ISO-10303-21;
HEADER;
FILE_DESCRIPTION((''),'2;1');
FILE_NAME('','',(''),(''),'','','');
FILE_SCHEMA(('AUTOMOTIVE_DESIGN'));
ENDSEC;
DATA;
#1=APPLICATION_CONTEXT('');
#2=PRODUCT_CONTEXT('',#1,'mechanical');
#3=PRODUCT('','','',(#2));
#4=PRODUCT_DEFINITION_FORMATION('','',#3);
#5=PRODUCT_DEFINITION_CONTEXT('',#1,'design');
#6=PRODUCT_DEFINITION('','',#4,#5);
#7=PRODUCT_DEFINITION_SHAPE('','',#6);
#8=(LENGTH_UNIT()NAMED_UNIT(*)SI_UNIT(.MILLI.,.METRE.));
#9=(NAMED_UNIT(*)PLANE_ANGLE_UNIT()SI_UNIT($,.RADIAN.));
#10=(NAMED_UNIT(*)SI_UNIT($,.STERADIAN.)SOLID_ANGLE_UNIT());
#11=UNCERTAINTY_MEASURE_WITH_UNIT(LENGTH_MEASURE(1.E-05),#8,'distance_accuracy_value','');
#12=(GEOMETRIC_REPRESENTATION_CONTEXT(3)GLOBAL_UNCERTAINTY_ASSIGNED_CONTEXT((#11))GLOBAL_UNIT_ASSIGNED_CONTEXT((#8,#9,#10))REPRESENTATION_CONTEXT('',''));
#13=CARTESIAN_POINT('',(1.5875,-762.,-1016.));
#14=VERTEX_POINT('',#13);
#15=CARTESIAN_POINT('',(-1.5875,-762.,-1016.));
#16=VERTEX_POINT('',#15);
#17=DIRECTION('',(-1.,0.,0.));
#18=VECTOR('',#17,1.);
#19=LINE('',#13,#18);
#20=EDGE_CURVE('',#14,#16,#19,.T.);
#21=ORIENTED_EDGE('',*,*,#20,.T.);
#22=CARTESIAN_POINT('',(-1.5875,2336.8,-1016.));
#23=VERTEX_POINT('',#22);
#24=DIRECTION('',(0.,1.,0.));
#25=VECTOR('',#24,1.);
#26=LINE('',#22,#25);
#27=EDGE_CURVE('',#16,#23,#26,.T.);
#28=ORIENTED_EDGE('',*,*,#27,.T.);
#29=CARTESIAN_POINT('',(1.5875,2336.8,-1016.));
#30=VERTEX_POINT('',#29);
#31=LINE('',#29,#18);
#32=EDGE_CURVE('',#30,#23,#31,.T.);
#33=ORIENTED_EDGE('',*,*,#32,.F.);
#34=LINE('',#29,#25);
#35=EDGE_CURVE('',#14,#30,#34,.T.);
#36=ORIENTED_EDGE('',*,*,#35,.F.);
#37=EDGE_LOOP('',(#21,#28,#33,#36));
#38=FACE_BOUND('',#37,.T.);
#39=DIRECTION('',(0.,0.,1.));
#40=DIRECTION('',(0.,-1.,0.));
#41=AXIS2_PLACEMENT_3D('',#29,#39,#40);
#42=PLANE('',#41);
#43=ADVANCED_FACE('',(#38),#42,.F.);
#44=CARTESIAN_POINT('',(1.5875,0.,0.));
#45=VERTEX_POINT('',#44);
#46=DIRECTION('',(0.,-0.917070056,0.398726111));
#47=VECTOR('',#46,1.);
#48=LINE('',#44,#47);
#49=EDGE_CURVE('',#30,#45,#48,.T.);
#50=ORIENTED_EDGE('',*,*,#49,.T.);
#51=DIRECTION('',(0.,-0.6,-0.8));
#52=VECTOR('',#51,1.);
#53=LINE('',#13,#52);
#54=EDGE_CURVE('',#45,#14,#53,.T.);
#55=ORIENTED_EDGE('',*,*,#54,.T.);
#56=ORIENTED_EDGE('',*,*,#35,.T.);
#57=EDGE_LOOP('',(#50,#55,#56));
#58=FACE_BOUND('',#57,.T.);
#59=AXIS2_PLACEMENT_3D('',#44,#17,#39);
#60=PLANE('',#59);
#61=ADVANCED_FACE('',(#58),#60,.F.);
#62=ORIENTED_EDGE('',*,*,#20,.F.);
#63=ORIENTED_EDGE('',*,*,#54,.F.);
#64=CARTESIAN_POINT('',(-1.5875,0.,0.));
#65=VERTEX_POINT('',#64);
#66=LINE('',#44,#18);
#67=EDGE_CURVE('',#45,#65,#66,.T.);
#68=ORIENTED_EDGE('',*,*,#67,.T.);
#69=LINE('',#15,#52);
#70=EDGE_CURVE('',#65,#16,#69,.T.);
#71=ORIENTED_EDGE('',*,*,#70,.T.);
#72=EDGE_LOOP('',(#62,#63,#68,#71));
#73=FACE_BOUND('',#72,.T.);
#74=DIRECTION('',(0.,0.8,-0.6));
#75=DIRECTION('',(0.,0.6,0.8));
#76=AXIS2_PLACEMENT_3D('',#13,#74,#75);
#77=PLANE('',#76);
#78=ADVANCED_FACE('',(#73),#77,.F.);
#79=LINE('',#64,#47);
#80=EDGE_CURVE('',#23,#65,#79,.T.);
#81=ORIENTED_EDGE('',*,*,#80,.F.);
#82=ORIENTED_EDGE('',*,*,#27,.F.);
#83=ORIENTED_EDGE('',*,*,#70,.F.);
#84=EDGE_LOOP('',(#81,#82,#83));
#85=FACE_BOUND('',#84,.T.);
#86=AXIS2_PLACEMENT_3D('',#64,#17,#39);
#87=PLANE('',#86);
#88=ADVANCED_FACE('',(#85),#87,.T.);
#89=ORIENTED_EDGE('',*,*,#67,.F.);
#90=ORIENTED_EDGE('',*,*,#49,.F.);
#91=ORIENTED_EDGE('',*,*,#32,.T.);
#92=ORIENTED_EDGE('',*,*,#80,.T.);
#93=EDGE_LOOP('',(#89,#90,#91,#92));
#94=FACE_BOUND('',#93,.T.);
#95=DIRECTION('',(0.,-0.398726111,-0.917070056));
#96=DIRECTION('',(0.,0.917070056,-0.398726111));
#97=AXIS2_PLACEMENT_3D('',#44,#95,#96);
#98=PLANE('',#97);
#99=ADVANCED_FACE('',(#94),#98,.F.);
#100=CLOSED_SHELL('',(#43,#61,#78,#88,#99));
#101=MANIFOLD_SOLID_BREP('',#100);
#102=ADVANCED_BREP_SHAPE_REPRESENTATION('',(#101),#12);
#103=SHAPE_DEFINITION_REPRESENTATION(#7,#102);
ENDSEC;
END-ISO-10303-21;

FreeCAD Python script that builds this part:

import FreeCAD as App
import Part
import Sketcher

V = App.Vector
Q = App.Units.Quantity


def add_polygon(sketch, points):
    """Adds a closed chain of lines whose ends are joined by coincident constraints."""
    first, n = sketch.GeometryCount, len(points)
    for a, b in zip(points, points[1:] + points[:1]):
        sketch.addGeometry(Part.LineSegment(App.Vector(*a, 0), App.Vector(*b, 0)), False)
    for i in range(n):
        sketch.addConstraint(Sketcher.Constraint("Coincident", first + i, 2, first + (i + 1) % n, 1))

doc = App.newDocument("Part")
params = doc.addObject("Spreadsheet::Sheet", "Params")
for row, (alias, value) in enumerate([
    ("sketch1_width", "122 in"),
    ("sketch1_length", "50 in"),
    ("pad1_length", "0.125 in"),
], start=1):
    params.set(f"A{row}", alias)
    params.set(f"B{row}", "=" + value)
    params.setAlias(f"B{row}", alias)

body = doc.addObject("PartDesign::Body", "Body")

# Sketch on YZ plane
sketch1 = body.newObject("Sketcher::SketchObject", "Sketch")
sketch1.AttachmentSupport = (doc.getObject("YZ_Plane"), [""])
sketch1.MapMode = "FlatFace"
add_polygon(sketch1, [(2337, -1016), (0, 0), (-762, -1016)])  # lines 0-2
sketch1.addConstraint([
    Sketcher.Constraint("Horizontal", 2),
    Sketcher.Constraint("Coincident", 0, 2, -1, 1),
    Sketcher.Constraint("DistanceX", 2, 1, 2, 2, Q("122 in")),
    Sketcher.Constraint("Distance", 1, Q("50 in")),
    Sketcher.Constraint("DistanceX", 1, 2, -1, 1, Q("30 in")),
])
sketch1.setExpression("Constraints[5]", "Params.sketch1_width")
sketch1.setExpression("Constraints[6]", "Params.sketch1_length")
pad1 = body.newObject("PartDesign::Pad", "Pad")
pad1.Profile = sketch1
pad1.setExpression("Length", "Params.pad1_length")
pad1.Midplane = True

doc.recompute()
